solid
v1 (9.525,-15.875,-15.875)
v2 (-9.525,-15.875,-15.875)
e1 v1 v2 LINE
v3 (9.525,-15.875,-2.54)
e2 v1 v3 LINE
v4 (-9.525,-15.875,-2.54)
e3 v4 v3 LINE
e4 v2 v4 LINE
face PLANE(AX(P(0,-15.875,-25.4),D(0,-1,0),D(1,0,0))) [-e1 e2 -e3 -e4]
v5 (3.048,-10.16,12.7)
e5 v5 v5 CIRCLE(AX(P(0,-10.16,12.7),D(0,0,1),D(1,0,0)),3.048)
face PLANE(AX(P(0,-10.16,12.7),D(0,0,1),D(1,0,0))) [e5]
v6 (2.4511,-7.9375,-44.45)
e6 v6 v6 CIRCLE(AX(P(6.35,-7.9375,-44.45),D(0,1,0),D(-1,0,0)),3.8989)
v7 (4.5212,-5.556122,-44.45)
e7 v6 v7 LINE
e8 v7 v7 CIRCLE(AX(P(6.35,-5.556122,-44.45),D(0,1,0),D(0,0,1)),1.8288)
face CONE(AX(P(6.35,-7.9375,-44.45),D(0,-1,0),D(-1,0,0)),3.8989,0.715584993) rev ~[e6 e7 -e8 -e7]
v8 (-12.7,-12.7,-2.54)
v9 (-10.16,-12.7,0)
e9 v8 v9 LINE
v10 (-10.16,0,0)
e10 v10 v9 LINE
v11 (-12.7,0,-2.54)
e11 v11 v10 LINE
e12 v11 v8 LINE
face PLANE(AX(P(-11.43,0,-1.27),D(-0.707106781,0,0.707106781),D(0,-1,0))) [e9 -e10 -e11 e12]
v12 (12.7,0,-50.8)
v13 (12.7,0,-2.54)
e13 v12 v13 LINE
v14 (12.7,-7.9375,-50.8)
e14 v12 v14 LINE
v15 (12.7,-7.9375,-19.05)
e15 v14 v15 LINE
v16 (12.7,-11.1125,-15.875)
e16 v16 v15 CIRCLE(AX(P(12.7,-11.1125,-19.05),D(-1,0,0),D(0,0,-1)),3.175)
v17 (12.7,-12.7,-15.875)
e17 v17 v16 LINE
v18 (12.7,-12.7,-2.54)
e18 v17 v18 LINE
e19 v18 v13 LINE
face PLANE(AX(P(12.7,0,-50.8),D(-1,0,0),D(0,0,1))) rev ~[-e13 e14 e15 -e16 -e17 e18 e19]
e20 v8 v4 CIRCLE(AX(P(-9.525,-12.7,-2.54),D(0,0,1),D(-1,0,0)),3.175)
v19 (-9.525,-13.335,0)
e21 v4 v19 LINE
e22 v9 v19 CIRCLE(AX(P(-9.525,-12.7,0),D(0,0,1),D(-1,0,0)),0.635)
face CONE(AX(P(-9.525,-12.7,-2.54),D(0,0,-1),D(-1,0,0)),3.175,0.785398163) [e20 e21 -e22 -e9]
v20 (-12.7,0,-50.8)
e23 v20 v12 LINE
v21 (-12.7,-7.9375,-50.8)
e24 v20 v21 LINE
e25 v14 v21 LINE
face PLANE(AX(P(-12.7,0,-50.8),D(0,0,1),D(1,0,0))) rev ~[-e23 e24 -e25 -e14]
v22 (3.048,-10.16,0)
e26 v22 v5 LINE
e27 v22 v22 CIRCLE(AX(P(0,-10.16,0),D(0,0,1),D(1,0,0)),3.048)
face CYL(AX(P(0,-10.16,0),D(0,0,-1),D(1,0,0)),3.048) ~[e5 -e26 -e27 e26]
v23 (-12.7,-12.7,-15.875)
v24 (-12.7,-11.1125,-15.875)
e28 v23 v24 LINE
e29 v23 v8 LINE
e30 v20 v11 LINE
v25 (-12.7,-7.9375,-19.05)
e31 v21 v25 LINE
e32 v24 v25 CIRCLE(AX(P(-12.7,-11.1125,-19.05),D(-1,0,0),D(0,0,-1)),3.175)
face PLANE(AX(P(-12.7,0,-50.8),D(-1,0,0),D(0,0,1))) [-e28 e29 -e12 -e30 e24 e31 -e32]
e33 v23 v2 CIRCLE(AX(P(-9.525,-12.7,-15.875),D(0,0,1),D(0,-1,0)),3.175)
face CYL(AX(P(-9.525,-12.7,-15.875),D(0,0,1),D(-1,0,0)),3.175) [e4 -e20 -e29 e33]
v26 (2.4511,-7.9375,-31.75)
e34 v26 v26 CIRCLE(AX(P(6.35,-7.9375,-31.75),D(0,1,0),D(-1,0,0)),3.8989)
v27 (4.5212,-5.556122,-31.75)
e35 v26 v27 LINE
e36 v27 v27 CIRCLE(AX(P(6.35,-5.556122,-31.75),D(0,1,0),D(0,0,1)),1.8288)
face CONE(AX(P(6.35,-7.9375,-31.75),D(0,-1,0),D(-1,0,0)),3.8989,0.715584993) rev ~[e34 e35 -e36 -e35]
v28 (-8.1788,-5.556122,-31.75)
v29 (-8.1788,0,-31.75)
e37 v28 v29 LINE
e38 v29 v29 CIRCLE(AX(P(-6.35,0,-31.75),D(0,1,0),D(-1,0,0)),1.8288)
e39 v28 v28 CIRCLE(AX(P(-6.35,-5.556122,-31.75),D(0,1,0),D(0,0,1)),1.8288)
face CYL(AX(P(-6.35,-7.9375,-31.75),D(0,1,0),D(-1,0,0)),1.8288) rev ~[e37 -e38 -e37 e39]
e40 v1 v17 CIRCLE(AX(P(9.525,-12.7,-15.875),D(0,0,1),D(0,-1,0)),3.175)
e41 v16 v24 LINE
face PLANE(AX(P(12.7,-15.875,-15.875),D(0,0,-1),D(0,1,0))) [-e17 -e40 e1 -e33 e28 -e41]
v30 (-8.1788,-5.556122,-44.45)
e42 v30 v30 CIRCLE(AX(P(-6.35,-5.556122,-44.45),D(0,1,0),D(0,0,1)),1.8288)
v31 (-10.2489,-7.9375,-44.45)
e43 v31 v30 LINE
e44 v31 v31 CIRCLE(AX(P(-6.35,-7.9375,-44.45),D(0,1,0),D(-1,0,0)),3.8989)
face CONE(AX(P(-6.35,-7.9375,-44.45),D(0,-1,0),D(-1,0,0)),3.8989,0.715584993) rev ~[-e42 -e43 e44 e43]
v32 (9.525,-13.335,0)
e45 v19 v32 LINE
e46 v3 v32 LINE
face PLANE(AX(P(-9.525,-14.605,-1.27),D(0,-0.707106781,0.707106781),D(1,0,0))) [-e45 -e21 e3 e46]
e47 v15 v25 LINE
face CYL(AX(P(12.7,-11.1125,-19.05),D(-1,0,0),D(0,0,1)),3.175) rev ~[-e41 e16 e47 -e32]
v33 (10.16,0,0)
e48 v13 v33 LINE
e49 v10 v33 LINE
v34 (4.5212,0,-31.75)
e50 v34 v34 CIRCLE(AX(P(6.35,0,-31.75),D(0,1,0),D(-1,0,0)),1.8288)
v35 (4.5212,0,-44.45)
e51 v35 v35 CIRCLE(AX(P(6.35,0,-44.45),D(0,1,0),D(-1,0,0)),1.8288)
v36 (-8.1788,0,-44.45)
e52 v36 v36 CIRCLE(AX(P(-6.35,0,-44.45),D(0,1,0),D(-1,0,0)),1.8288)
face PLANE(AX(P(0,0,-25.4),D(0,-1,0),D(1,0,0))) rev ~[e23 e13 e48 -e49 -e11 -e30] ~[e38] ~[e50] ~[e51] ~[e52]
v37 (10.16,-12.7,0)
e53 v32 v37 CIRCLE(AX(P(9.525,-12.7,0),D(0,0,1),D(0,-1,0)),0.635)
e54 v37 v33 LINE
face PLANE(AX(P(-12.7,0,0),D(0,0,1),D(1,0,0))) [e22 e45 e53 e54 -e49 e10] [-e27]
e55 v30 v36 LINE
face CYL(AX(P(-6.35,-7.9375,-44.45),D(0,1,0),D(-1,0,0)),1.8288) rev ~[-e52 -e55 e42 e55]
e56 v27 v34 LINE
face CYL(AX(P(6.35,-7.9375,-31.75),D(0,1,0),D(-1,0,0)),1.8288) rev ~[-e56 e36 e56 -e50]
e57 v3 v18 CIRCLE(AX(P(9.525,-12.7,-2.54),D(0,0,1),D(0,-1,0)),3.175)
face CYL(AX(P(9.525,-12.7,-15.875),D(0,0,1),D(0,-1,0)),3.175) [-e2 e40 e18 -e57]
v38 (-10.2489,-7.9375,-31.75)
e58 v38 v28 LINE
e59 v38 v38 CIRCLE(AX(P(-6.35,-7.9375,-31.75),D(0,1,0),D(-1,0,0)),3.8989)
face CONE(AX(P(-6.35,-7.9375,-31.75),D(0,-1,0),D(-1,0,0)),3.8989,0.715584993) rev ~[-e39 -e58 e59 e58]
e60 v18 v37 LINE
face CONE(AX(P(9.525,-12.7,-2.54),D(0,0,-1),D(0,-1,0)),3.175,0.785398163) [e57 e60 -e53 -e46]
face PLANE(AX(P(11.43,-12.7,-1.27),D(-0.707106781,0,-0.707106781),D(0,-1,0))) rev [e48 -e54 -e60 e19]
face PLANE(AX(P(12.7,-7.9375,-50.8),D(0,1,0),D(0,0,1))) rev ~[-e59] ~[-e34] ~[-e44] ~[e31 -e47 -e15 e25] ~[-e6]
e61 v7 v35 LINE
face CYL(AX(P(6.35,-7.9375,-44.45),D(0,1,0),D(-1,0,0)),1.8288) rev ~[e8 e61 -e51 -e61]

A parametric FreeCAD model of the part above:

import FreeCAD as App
import Part
import Sketcher
Q = App.Units.Quantity


def edges_at(feature, points):
    """Names of the edges that pass closest to the given points."""
    edges = feature.Shape.Edges
    near = lambda p: min(range(len(edges)), key=lambda i: edges[i].distToShape(Part.Vertex(*p))[0])
    return sorted({f"Edge{near(p) + 1}" for p in points})

doc = App.newDocument("Part")
body = doc.addObject("PartDesign::Body", "Body")

# Sketch on XZ plane
sketch1 = body.newObject("Sketcher::SketchObject", "Sketch")
sketch1.AttachmentSupport = (doc.getObject("XZ_Plane"), [""])
sketch1.MapMode = "FlatFace"
sketch1.addGeometry([
    Part.LineSegment(App.Vector(-13, 0, 0), App.Vector(-13, -51, 0)),
    Part.LineSegment(App.Vector(-13, -51, 0), App.Vector(13, -51, 0)),
    Part.LineSegment(App.Vector(13, -51, 0), App.Vector(13, 0, 0)),
    Part.LineSegment(App.Vector(13, 0, 0), App.Vector(-13, 0, 0)),
], False)
sketch1.addConstraint([
    Sketcher.Constraint("Coincident", 0, 2, 1, 1),
    Sketcher.Constraint("Coincident", 1, 2, 2, 1),
    Sketcher.Constraint("Coincident", 2, 2, 3, 1),
    Sketcher.Constraint("Coincident", 3, 2, 0, 1),
    Sketcher.Constraint("Vertical", 0),
    Sketcher.Constraint("Horizontal", 1),
    Sketcher.Constraint("Vertical", 2),
    Sketcher.Constraint("Horizontal", 3),
    Sketcher.Constraint("Symmetric", 2, 2, 3, 2, -1, 1),
    Sketcher.Constraint("DistanceX", 1, 1, 1, 2, Q("1 in")),
    Sketcher.Constraint("DistanceY", 0, 2, 0, 1, Q("2 in")),
])
pad1 = body.newObject("PartDesign::Pad", "Pad")
pad1.Profile = sketch1
pad1.Length = Q("0.625 in")

# Sketch on XY plane
sketch2 = body.newObject("Sketcher::SketchObject", "Sketch001")
sketch2.AttachmentSupport = (doc.getObject("XY_Plane"), [""])
sketch2.MapMode = "FlatFace"
sketch2.addGeometry(Part.Circle(App.Vector(0, -10.2, 0), App.Vector(0, 0, 1), 3), False)
sketch2.addConstraint([
    Sketcher.Constraint("PointOnObject", 0, 3, -2),
    Sketcher.Constraint("Diameter", 0, Q("0.24 in")),
    Sketcher.Constraint("DistanceY", 0, 3, -1, 1, Q("0.4 in")),
])
pad2 = body.newObject("PartDesign::Pad", "Pad001")
pad2.Profile = sketch2
pad2.Length = Q("0.5 in")

# Sketch on YZ plane
sketch3 = body.newObject("Sketcher::SketchObject", "Sketch002")
sketch3.AttachmentSupport = (doc.getObject("YZ_Plane"), [""])
sketch3.MapMode = "FlatFace"
sketch3.AttachmentOffset = App.Placement(App.Vector(0, 0, 0.5 * 25.4), App.Rotation())
sketch3.addGeometry([
    Part.LineSegment(App.Vector(-16, -16, 0), App.Vector(-16, -51, 0)),
    Part.LineSegment(App.Vector(-16, -51, 0), App.Vector(-8, -51, 0)),
    Part.LineSegment(App.Vector(-8, -51, 0), App.Vector(-8, -16, 0)),
    Part.LineSegment(App.Vector(-8, -16, 0), App.Vector(-16, -16, 0)),
], False)
sketch3.addConstraint([
    Sketcher.Constraint("Coincident", 0, 2, 1, 1),
    Sketcher.Constraint("Coincident", 1, 2, 2, 1),
    Sketcher.Constraint("Coincident", 2, 2, 3, 1),
    Sketcher.Constraint("Coincident", 3, 2, 0, 1),
    Sketcher.Constraint("Vertical", 0),
    Sketcher.Constraint("Horizontal", 1),
    Sketcher.Constraint("Vertical", 2),
    Sketcher.Constraint("Horizontal", 3),
    Sketcher.Constraint("DistanceY", 0, 2, -1, 1, Q("2 in")),
    Sketcher.Constraint("DistanceX", 1, 1, 1, 2, Q("0.3125 in")),
    Sketcher.Constraint("DistanceY", 0, 2, 0, 1, Q("1.375 in")),
    Sketcher.Constraint("DistanceX", 0, 2, -1, 1, Q("0.625 in")),
])
pocket1 = body.newObject("PartDesign::Pocket", "Pocket")
pocket1.Profile = sketch3
pocket1.Type = "ThroughAll"
doc.recompute()

fillet = body.newObject("PartDesign::Fillet", "Fillet")
fillet.Base = (pocket1, edges_at(pocket1, [(12.7, -15.875, -7.938), (-12.7, -15.875, -7.938), (0, -7.938, -15.875)]))
fillet.Radius = Q("0.125 in")

# Sketch on XZ plane
sketch4 = body.newObject("Sketcher::SketchObject", "Sketch003")
sketch4.AttachmentSupport = (doc.getObject("XZ_Plane"), [""])
sketch4.MapMode = "FlatFace"
sketch4.AttachmentOffset = App.Placement(App.Vector(0, 0, 0.3125 * 25.4), App.Rotation())
sketch4.addGeometry([
    Part.Circle(App.Vector(-6.3, -31.8, 0), App.Vector(0, 0, 1), 1.8),
    Part.Circle(App.Vector(6.3, -31.8, 0), App.Vector(0, 0, 1), 1.8),
    Part.Circle(App.Vector(6.3, -44.5, 0), App.Vector(0, 0, 1), 1.8),
    Part.Circle(App.Vector(-6.3, -44.5, 0), App.Vector(0, 0, 1), 1.8),
], False)
sketch4.addConstraint([
    Sketcher.Constraint("Equal", 0, 1),
    Sketcher.Constraint("Equal", 1, 2),
    Sketcher.Constraint("Equal", 2, 3),
    Sketcher.Constraint("Symmetric", 0, 3, 1, 3, -2),
    Sketcher.Constraint("Symmetric", 2, 3, 3, 3, -2),
    Sketcher.Constraint("Vertical", 1, 3, 2, 3),
    Sketcher.Constraint("Diameter", 0, Q("0.144 in")),
    Sketcher.Constraint("DistanceX", 0, 3, 1, 3, Q("0.5 in")),
    Sketcher.Constraint("DistanceY", 2, 3, 1, 3, Q("0.5 in")),
    Sketcher.Constraint("DistanceY", 0, 3, -1, 1, Q("1.25 in")),
])
doc.recompute()
hole = body.newObject("PartDesign::Hole", "Hole")
hole.Profile = sketch4
hole.ThreadType = "None"
hole.Diameter = Q("0.144 in")
hole.DepthType = "ThroughAll"
hole.HoleCutType = "Countersink"
hole.HoleCutDiameter = Q("0.307 in")
hole.HoleCutCountersinkAngle = 82
doc.recompute()

chamfer = body.newObject("PartDesign::Chamfer", "Chamfer")
chamfer.Base = (hole, edges_at(hole, [(0, -15.875, 0)]))
chamfer.Size = Q("0.1 in")

doc.recompute()
